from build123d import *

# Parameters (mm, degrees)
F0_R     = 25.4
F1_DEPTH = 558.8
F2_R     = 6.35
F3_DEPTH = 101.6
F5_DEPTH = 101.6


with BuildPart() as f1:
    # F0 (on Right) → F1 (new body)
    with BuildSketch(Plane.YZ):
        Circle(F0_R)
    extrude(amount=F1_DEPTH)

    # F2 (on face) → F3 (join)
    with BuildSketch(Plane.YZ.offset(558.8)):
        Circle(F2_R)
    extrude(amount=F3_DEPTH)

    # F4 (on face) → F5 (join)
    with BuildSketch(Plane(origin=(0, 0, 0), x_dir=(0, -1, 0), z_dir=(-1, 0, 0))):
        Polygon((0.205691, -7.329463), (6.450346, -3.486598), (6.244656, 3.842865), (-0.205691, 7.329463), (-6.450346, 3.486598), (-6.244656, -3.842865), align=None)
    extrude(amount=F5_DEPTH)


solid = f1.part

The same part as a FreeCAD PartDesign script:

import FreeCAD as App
import Part
import Sketcher
Q = App.Units.Quantity

doc = App.newDocument("Part")
body = doc.addObject("PartDesign::Body", "Body")

# Sketch on YZ plane
sketch1 = body.newObject("Sketcher::SketchObject", "Sketch")
sketch1.AttachmentSupport = (doc.getObject("YZ_Plane"), [""])
sketch1.MapMode = "FlatFace"
sketch1.addGeometry(Part.Circle(App.Vector(0, 0, 0), App.Vector(0, 0, 1), 25), False)
sketch1.addConstraint([
    Sketcher.Constraint("Coincident", 0, 3, -1, 1),
    Sketcher.Constraint("Diameter", 0, Q("2 in")),
])
pad1 = body.newObject("PartDesign::Pad", "Pad")
pad1.Profile = sketch1
pad1.Length = Q("22 in")

# Sketch on YZ plane
sketch2 = body.newObject("Sketcher::SketchObject", "Sketch001")
sketch2.AttachmentSupport = (doc.getObject("YZ_Plane"), [""])
sketch2.MapMode = "FlatFace"
sketch2.AttachmentOffset = App.Placement(App.Vector(0, 0, 22 * 25.4), App.Rotation())
sketch2.addGeometry(Part.Circle(App.Vector(0, 0, 0), App.Vector(0, 0, 1), 6), False)
sketch2.addConstraint([
    Sketcher.Constraint("Coincident", 0, 3, -1, 1),
    Sketcher.Constraint("Diameter", 0, Q("0.5 in")),
])
pad2 = body.newObject("PartDesign::Pad", "Pad001")
pad2.Profile = sketch2
pad2.Length = Q("4 in")

# Sketch on YZ plane
sketch3 = body.newObject("Sketcher::SketchObject", "Sketch002")
sketch3.AttachmentSupport = (doc.getObject("YZ_Plane"), [""])
sketch3.MapMode = "FlatFace"
sketch3.addGeometry([
    Part.LineSegment(App.Vector(0, -7, 0), App.Vector(-6, -3, 0)),  # 0
    Part.LineSegment(App.Vector(-6, -3, 0), App.Vector(-6, 4, 0)),  # 1
    Part.LineSegment(App.Vector(-6, 4, 0), App.Vector(0, 7, 0)),  # 2
    Part.LineSegment(App.Vector(0, 7, 0), App.Vector(6, 3, 0)),  # 3
    Part.LineSegment(App.Vector(6, 3, 0), App.Vector(6, -4, 0)),  # 4
    Part.LineSegment(App.Vector(6, -4, 0), App.Vector(0, -7, 0)),  # 5
], False)
sketch3.addConstraint([
    Sketcher.Constraint("Coincident", 0, 2, 1, 1),
    Sketcher.Constraint("Coincident", 1, 2, 2, 1),
    Sketcher.Constraint("Coincident", 2, 2, 3, 1),
    Sketcher.Constraint("Coincident", 3, 2, 4, 1),
    Sketcher.Constraint("Coincident", 4, 2, 5, 1),
    Sketcher.Constraint("Coincident", 5, 2, 0, 1),
    Sketcher.Constraint("Symmetric", 0, 2, 3, 2, -1, 1),
    Sketcher.Constraint("Symmetric", 1, 2, 4, 2, -1, 1),
    Sketcher.Constraint("Symmetric", 2, 2, 5, 2, -1, 1),
    Sketcher.Constraint("Equal", 0, 1),
    Sketcher.Constraint("Equal", 1, 2),
    Sketcher.Constraint("DistanceX", 1, 2, 3, 2, 12.695002),
    Sketcher.Constraint("Distance", 0, 7.332348),
    Sketcher.Constraint("DistanceX", -1, 1, 2, 2, 0.205691),
    Sketcher.Constraint("DistanceX", 0, 2, 1, 2, 0.20569),
])
pad3 = body.newObject("PartDesign::Pad", "Pad002")
pad3.Profile = sketch3
pad3.Length = Q("4 in")
pad3.Reversed = True

doc.recompute()
